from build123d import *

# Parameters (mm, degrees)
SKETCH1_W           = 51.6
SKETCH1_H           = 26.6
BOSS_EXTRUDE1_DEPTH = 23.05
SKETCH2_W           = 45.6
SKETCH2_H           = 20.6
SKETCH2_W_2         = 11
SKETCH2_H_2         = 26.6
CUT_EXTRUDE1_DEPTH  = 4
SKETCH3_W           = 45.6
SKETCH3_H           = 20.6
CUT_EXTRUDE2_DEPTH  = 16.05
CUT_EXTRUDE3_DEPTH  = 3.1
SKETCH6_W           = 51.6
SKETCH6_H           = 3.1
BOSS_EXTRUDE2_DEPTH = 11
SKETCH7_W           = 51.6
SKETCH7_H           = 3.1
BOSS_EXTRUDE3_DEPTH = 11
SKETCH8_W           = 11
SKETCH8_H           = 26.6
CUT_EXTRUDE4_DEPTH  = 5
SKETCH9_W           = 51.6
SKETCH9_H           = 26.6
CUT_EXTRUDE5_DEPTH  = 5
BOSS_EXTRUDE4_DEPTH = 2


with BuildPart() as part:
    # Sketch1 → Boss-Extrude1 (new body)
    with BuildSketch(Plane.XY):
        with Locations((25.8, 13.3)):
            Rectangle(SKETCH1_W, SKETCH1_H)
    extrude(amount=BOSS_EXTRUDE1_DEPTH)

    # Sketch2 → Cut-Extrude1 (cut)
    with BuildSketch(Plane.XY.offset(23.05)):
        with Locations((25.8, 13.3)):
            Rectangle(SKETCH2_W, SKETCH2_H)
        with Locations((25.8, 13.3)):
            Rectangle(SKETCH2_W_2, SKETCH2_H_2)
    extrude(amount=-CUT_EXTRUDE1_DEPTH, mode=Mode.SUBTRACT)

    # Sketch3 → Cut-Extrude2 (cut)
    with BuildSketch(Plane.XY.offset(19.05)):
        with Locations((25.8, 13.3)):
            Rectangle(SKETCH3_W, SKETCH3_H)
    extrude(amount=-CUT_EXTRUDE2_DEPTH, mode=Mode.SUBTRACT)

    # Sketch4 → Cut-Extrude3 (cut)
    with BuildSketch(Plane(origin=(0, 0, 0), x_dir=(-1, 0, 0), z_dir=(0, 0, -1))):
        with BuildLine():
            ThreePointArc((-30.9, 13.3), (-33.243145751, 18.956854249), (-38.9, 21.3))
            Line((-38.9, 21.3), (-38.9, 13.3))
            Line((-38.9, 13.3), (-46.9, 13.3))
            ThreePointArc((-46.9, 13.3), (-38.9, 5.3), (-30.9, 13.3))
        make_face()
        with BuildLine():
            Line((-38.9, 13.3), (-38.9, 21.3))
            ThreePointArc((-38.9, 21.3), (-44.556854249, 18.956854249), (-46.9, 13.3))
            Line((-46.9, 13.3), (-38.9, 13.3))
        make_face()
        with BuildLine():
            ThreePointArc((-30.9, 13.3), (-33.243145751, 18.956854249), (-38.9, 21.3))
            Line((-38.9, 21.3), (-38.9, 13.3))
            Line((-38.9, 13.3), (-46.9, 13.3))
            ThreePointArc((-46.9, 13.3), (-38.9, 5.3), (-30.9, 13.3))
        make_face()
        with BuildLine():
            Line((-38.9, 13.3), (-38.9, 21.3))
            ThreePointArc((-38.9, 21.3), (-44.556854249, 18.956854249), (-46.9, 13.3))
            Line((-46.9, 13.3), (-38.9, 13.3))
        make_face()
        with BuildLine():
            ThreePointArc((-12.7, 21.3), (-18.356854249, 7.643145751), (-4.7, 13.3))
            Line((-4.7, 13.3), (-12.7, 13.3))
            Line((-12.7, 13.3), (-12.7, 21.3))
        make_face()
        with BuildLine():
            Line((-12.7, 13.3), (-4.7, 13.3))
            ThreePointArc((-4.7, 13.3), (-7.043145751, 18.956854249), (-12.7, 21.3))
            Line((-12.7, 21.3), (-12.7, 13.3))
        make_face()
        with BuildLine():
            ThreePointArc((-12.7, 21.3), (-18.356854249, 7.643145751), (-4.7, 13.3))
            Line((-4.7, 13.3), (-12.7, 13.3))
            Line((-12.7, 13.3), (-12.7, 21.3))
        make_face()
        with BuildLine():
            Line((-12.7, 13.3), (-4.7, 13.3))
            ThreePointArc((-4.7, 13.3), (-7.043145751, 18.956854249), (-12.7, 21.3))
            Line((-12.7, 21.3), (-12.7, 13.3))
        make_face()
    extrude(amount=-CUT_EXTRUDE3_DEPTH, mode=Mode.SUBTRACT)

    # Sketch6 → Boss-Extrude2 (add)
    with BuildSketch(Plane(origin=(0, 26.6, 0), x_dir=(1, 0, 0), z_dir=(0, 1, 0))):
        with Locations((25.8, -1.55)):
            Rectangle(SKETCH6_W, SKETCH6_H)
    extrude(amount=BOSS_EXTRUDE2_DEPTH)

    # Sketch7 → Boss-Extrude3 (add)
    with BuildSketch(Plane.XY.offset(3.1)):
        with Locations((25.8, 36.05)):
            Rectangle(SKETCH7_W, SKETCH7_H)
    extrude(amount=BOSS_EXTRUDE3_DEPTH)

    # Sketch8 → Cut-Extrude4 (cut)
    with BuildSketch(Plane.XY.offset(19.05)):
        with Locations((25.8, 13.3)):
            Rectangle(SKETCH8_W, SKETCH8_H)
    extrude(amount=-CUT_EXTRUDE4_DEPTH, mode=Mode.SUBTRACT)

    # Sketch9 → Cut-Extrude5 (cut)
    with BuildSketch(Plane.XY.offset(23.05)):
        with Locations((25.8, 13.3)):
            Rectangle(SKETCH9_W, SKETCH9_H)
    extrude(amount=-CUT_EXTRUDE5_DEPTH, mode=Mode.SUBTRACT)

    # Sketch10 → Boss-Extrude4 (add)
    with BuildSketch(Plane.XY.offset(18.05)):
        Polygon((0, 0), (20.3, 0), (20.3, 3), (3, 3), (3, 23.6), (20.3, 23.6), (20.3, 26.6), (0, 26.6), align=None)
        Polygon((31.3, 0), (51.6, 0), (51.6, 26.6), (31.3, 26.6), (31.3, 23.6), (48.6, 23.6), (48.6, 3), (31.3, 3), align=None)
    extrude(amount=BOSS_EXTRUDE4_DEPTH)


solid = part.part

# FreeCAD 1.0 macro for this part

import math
import FreeCAD as App
import Part
import Sketcher


def add_polygon(sketch, points):
    """Adds a closed chain of lines whose ends are joined by coincident constraints."""
    first, n = sketch.GeometryCount, len(points)
    for a, b in zip(points, points[1:] + points[:1]):
        sketch.addGeometry(Part.LineSegment(App.Vector(*a, 0), App.Vector(*b, 0)), False)
    for i in range(n):
        sketch.addConstraint(Sketcher.Constraint("Coincident", first + i, 2, first + (i + 1) % n, 1))

doc = App.newDocument("Part")
params = doc.addObject("Spreadsheet::Sheet", "Params")
for row, (alias, value) in enumerate([
    ("sketch1_width", "51.6 mm"),
    ("sketch1_height", "26.6 mm"),
    ("pad1_length", "23.05 mm"),
    ("sketch2_width", "11 mm"),
    ("sketch2_height", "3 mm"),
    ("sketch2_width2", "17.3 mm"),
    ("sketch2_height2", "20.6 mm"),
    ("pocket1_length", "4 mm"),
    ("sketch3_width", "45.6 mm"),
    ("sketch3_height", "20.6 mm"),
    ("pocket2_length", "16.05 mm"),
    ("sketch4_radius", "8 mm"),
    ("pocket3_length", "3.1 mm"),
    ("sketch5_width", "51.6 mm"),
    ("sketch5_height", "3.1 mm"),
    ("pad2_length", "11 mm"),
    ("sketch6_width", "51.6 mm"),
    ("sketch6_height", "3.1 mm"),
    ("pad3_length", "11 mm"),
    ("sketch7_width", "11 mm"),
    ("sketch7_height", "26.6 mm"),
    ("pocket4_length", "5 mm"),
    ("sketch8_width", "51.6 mm"),
    ("sketch8_height", "26.6 mm"),
    ("pocket5_length", "5 mm"),
    ("sketch9_height", "3 mm"),
    ("sketch9_width", "20.3 mm"),
    ("sketch9_width2", "17.3 mm"),
    ("sketch9_height2", "20.6 mm"),
    ("pad4_length", "2 mm"),
], start=1):
    params.set(f"A{row}", alias)
    params.set(f"B{row}", "=" + value)
    params.setAlias(f"B{row}", alias)

body = doc.addObject("PartDesign::Body", "Body")

# Sketch on XY plane
sketch1 = body.newObject("Sketcher::SketchObject", "Sketch")
sketch1.AttachmentSupport = (doc.getObject("XY_Plane"), [""])
sketch1.MapMode = "FlatFace"
add_polygon(sketch1, [(0, 27), (0, 0), (52, 0), (52, 27)])  # lines 0-3
sketch1.addConstraint([
    Sketcher.Constraint("Vertical", 0),
    Sketcher.Constraint("Horizontal", 1),
    Sketcher.Constraint("Vertical", 2),
    Sketcher.Constraint("Horizontal", 3),
    Sketcher.Constraint("Coincident", 0, 2, -1, 1),
    Sketcher.Constraint("DistanceX", 1, 1, 1, 2, 51.6),
    Sketcher.Constraint("DistanceY", 0, 2, 0, 1, 26.6),
])
sketch1.setExpression("Constraints[9]", "Params.sketch1_width")
sketch1.setExpression("Constraints[10]", "Params.sketch1_height")
pad1 = body.newObject("PartDesign::Pad", "Pad")
pad1.Profile = sketch1
pad1.setExpression("Length", "Params.pad1_length")

# Sketch on XY plane
sketch2 = body.newObject("Sketcher::SketchObject", "Sketch001")
sketch2.AttachmentSupport = (doc.getObject("XY_Plane"), [""])
sketch2.MapMode = "FlatFace"
sketch2.AttachmentOffset = App.Placement(App.Vector(0, 0, 23.05), App.Rotation())
add_polygon(sketch2, [(3, 23.6), (3, 3), (20.3, 3), (20.3, 0), (31.3, 0), (31.3, 3), (48.6, 3), (48.6, 23.6), (31.3, 23.6), (31.3, 26.6), (20.3, 26.6), (20.3, 23.6)])  # lines 0-11
sketch2.addConstraint([
    Sketcher.Constraint("Vertical", 0),
    Sketcher.Constraint("Horizontal", 1),
    Sketcher.Constraint("Vertical", 2),
    Sketcher.Constraint("Horizontal", 3),
    Sketcher.Constraint("Vertical", 4),
    Sketcher.Constraint("Horizontal", 5),
    Sketcher.Constraint("Vertical", 6),
    Sketcher.Constraint("Horizontal", 7),
    Sketcher.Constraint("Vertical", 8),
    Sketcher.Constraint("Horizontal", 9),
    Sketcher.Constraint("Vertical", 10),
    Sketcher.Constraint("Horizontal", 11),
    Sketcher.Constraint("PointOnObject", 2, 2, -1),
    Sketcher.Constraint("Horizontal", 1, 2, 4, 2),
    Sketcher.Constraint("Horizontal", 7, 2, 10, 2),
    Sketcher.Constraint("Vertical", 4, 2, 7, 2),
    Sketcher.Constraint("Vertical", 2, 2, 9, 2),
    Sketcher.Constraint("Equal", 1, 5),
    Sketcher.Constraint("Equal", 4, 8),
    Sketcher.Constraint("DistanceX", 3, 1, 3, 2, 11.0),
    Sketcher.Constraint("DistanceY", 2, 2, 2, 1, 3.0),
    Sketcher.Constraint("DistanceX", 1, 1, 1, 2, 17.3),
    Sketcher.Constraint("DistanceY", 0, 2, 0, 1, 20.6),
    Sketcher.Constraint("DistanceX", -1, 1, 0, 2, 3.0),
])
sketch2.setExpression("Constraints[31]", "Params.sketch2_width")
sketch2.setExpression("Constraints[32]", "Params.sketch2_height")
sketch2.setExpression("Constraints[33]", "Params.sketch2_width2")
sketch2.setExpression("Constraints[34]", "Params.sketch2_height2")
pocket1 = body.newObject("PartDesign::Pocket", "Pocket")
pocket1.Profile = sketch2
pocket1.setExpression("Length", "Params.pocket1_length")

# Sketch on XY plane
sketch3 = body.newObject("Sketcher::SketchObject", "Sketch002")
sketch3.AttachmentSupport = (doc.getObject("XY_Plane"), [""])
sketch3.MapMode = "FlatFace"
sketch3.AttachmentOffset = App.Placement(App.Vector(0, 0, 19.05), App.Rotation())
add_polygon(sketch3, [(3, 24), (3, 3), (49, 3), (49, 24)])  # lines 0-3
sketch3.addConstraint([
    Sketcher.Constraint("Vertical", 0),
    Sketcher.Constraint("Horizontal", 1),
    Sketcher.Constraint("Vertical", 2),
    Sketcher.Constraint("Horizontal", 3),
    Sketcher.Constraint("DistanceX", 1, 1, 1, 2, 45.6),
    Sketcher.Constraint("DistanceY", 0, 2, 0, 1, 20.6),
    Sketcher.Constraint("DistanceX", -1, 1, 0, 2, 3.0),
    Sketcher.Constraint("DistanceY", -1, 1, 0, 2, 3.0),
])
sketch3.setExpression("Constraints[8]", "Params.sketch3_width")
sketch3.setExpression("Constraints[9]", "Params.sketch3_height")
pocket2 = body.newObject("PartDesign::Pocket", "Pocket001")
pocket2.Profile = sketch3
pocket2.setExpression("Length", "Params.pocket2_length")

# Sketch on XY plane
sketch4 = body.newObject("Sketcher::SketchObject", "Sketch003")
sketch4.AttachmentSupport = (doc.getObject("XY_Plane"), [""])
sketch4.MapMode = "FlatFace"
sketch4.addGeometry([
    Part.ArcOfCircle(Part.Circle(App.Vector(39, 13, 0), App.Vector(0, 0, 1), 8), math.radians(90), math.radians(180)),  # 0
    Part.ArcOfCircle(Part.Circle(App.Vector(39, 13, 0), App.Vector(0, 0, 1), 8), math.radians(0), math.radians(90)),  # 1
    Part.ArcOfCircle(Part.Circle(App.Vector(39, 13, 0), App.Vector(0, 0, 1), 8), math.radians(180), math.radians(360)),  # 2
    Part.ArcOfCircle(Part.Circle(App.Vector(13, 13, 0), App.Vector(0, 0, 1), 8), math.radians(180), math.radians(450)),  # 3
    Part.ArcOfCircle(Part.Circle(App.Vector(13, 13, 0), App.Vector(0, 0, 1), 8), math.radians(90), math.radians(180)),  # 4
], False)
sketch4.addConstraint([
    Sketcher.Constraint("Tangent", 0, 1, 1, 2),
    Sketcher.Constraint("Tangent", 1, 1, 2, 2),
    Sketcher.Constraint("Tangent", 2, 1, 0, 2),
    Sketcher.Constraint("Tangent", 3, 1, 4, 2),
    Sketcher.Constraint("Coincident", 4, 1, 3, 2),
    Sketcher.Constraint("Equal", 2, 3),
    Sketcher.Constraint("Horizontal", 2, 3, 3, 3),
    Sketcher.Constraint("Horizontal", 4, 3, 1, 1),
    Sketcher.Constraint("Horizontal", 1, 1, 2, 1),
    Sketcher.Constraint("Horizontal", 2, 1, 3, 1),
    Sketcher.Constraint("Vertical", 2, 3, 0, 1),
    Sketcher.Constraint("Vertical", 3, 3, 4, 1),
    Sketcher.Constraint("Radius", 0, 8.0),
    Sketcher.Constraint("DistanceX", -1, 1, 0, 3, 38.9),
    Sketcher.Constraint("DistanceY", -1, 1, 0, 3, 13.3),
    Sketcher.Constraint("DistanceX", -1, 1, 3, 3, 12.7),
])
sketch4.setExpression("Constraints[12]", "Params.sketch4_radius")
pocket3 = body.newObject("PartDesign::Pocket", "Pocket002")
pocket3.Profile = sketch4
pocket3.setExpression("Length", "Params.pocket3_length")
pocket3.Reversed = True

# Sketch on XZ plane
sketch5 = body.newObject("Sketcher::SketchObject", "Sketch004")
sketch5.AttachmentSupport = (doc.getObject("XZ_Plane"), [""])
sketch5.MapMode = "FlatFace"
sketch5.AttachmentOffset = App.Placement(App.Vector(0, 0, -26.6), App.Rotation())
add_polygon(sketch5, [(0, 0), (0, 3.1), (51.6, 3.1), (51.6, 0)])  # lines 0-3
sketch5.addConstraint([
    Sketcher.Constraint("Vertical", 0),
    Sketcher.Constraint("Horizontal", 1),
    Sketcher.Constraint("Vertical", 2),
    Sketcher.Constraint("Horizontal", 3),
    Sketcher.Constraint("Coincident", 3, 2, -1, 1),
    Sketcher.Constraint("DistanceX", 1, 1, 1, 2, 51.6),
    Sketcher.Constraint("DistanceY", 0, 1, 0, 2, 3.1),
])
sketch5.setExpression("Constraints[9]", "Params.sketch5_width")
sketch5.setExpression("Constraints[10]", "Params.sketch5_height")
pad2 = body.newObject("PartDesign::Pad", "Pad001")
pad2.Profile = sketch5
pad2.setExpression("Length", "Params.pad2_length")
pad2.Reversed = True

# Sketch on XY plane
sketch6 = body.newObject("Sketcher::SketchObject", "Sketch005")
sketch6.AttachmentSupport = (doc.getObject("XY_Plane"), [""])
sketch6.MapMode = "FlatFace"
sketch6.AttachmentOffset = App.Placement(App.Vector(0, 0, 3.1), App.Rotation())
add_polygon(sketch6, [(0, 37.6), (0, 34.5), (51.6, 34.5), (51.6, 37.6)])  # lines 0-3
sketch6.addConstraint([
    Sketcher.Constraint("Vertical", 0),
    Sketcher.Constraint("Horizontal", 1),
    Sketcher.Constraint("Vertical", 2),
    Sketcher.Constraint("Horizontal", 3),
    Sketcher.Constraint("PointOnObject", 0, 2, -2),
    Sketcher.Constraint("DistanceX", 1, 1, 1, 2, 51.6),
    Sketcher.Constraint("DistanceY", 0, 2, 0, 1, 3.1),
    Sketcher.Constraint("DistanceY", -1, 1, 0, 2, 34.5),
])
sketch6.setExpression("Constraints[9]", "Params.sketch6_width")
sketch6.setExpression("Constraints[10]", "Params.sketch6_height")
pad3 = body.newObject("PartDesign::Pad", "Pad002")
pad3.Profile = sketch6
pad3.setExpression("Length", "Params.pad3_length")

# Sketch on XY plane
sketch7 = body.newObject("Sketcher::SketchObject", "Sketch006")
sketch7.AttachmentSupport = (doc.getObject("XY_Plane"), [""])
sketch7.MapMode = "FlatFace"
sketch7.AttachmentOffset = App.Placement(App.Vector(0, 0, 19.05), App.Rotation())
add_polygon(sketch7, [(20, 27), (20, 0), (31, 0), (31, 27)])  # lines 0-3
sketch7.addConstraint([
    Sketcher.Constraint("Vertical", 0),
    Sketcher.Constraint("Horizontal", 1),
    Sketcher.Constraint("Vertical", 2),
    Sketcher.Constraint("Horizontal", 3),
    Sketcher.Constraint("PointOnObject", 0, 2, -1),
    Sketcher.Constraint("DistanceX", 1, 1, 1, 2, 11.0),
    Sketcher.Constraint("DistanceY", 0, 2, 0, 1, 26.6),
    Sketcher.Constraint("DistanceX", -1, 1, 0, 2, 20.3),
])
sketch7.setExpression("Constraints[9]", "Params.sketch7_width")
sketch7.setExpression("Constraints[10]", "Params.sketch7_height")
pocket4 = body.newObject("PartDesign::Pocket", "Pocket003")
pocket4.Profile = sketch7
pocket4.setExpression("Length", "Params.pocket4_length")

# Sketch on XY plane
sketch8 = body.newObject("Sketcher::SketchObject", "Sketch007")
sketch8.AttachmentSupport = (doc.getObject("XY_Plane"), [""])
sketch8.MapMode = "FlatFace"
sketch8.AttachmentOffset = App.Placement(App.Vector(0, 0, 23.05), App.Rotation())
add_polygon(sketch8, [(0, 27), (0, 0), (52, 0), (52, 27)])  # lines 0-3
sketch8.addConstraint([
    Sketcher.Constraint("Vertical", 0),
    Sketcher.Constraint("Horizontal", 1),
    Sketcher.Constraint("Vertical", 2),
    Sketcher.Constraint("Horizontal", 3),
    Sketcher.Constraint("Coincident", 0, 2, -1, 1),
    Sketcher.Constraint("DistanceX", 1, 1, 1, 2, 51.6),
    Sketcher.Constraint("DistanceY", 0, 2, 0, 1, 26.6),
])
sketch8.setExpression("Constraints[9]", "Params.sketch8_width")
sketch8.setExpression("Constraints[10]", "Params.sketch8_height")
pocket5 = body.newObject("PartDesign::Pocket", "Pocket004")
pocket5.Profile = sketch8
pocket5.setExpression("Length", "Params.pocket5_length")

# Sketch on XY plane
sketch9 = body.newObject("Sketcher::SketchObject", "Sketch008")
sketch9.AttachmentSupport = (doc.getObject("XY_Plane"), [""])
sketch9.MapMode = "FlatFace"
sketch9.AttachmentOffset = App.Placement(App.Vector(0, 0, 18.05), App.Rotation())
add_polygon(sketch9, [(0, 0), (20.3, 0), (20.3, 3), (3, 3), (3, 23.6), (20.3, 23.6), (20.3, 26.6), (0, 26.6)])  # lines 0-7
add_polygon(sketch9, [(31.3, 0), (51.6, 0), (51.6, 26.6), (31.3, 26.6), (31.3, 23.6), (48.6, 23.6), (48.6, 3), (31.3, 3)])  # lines 8-15
sketch9.addConstraint([
    Sketcher.Constraint("Horizontal", 0),
    Sketcher.Constraint("Vertical", 1),
    Sketcher.Constraint("Horizontal", 2),
    Sketcher.Constraint("Vertical", 3),
    Sketcher.Constraint("Horizontal", 4),
    Sketcher.Constraint("Vertical", 5),
    Sketcher.Constraint("Horizontal", 6),
    Sketcher.Constraint("Vertical", 7),
    Sketcher.Constraint("Horizontal", 8),
    Sketcher.Constraint("Vertical", 9),
    Sketcher.Constraint("Horizontal", 10),
    Sketcher.Constraint("Vertical", 11),
    Sketcher.Constraint("Horizontal", 12),
    Sketcher.Constraint("Vertical", 13),
    Sketcher.Constraint("Horizontal", 14),
    Sketcher.Constraint("Vertical", 15),
    Sketcher.Constraint("Coincident", 7, 2, -1, 1),
    Sketcher.Constraint("PointOnObject", 8, 2, -1),
    Sketcher.Constraint("Horizontal", 6, 2, 9, 2),
    Sketcher.Constraint("Horizontal", 4, 2, 11, 2),
    Sketcher.Constraint("Horizontal", 2, 2, 13, 2),
    Sketcher.Constraint("Vertical", 1, 2, 4, 2),
    Sketcher.Constraint("Vertical", 11, 2, 14, 2),
    Sketcher.Constraint("Equal", 6, 8),
    Sketcher.Constraint("Equal", 4, 12),
    Sketcher.Constraint("Equal", 1, 5),
    Sketcher.Constraint("DistanceY", 1, 1, 1, 2, 3.0),
    Sketcher.Constraint("DistanceX", 0, 1, 0, 2, 20.3),
    Sketcher.Constraint("DistanceX", 2, 2, 2, 1, 17.3),
    Sketcher.Constraint("DistanceY", 3, 1, 3, 2, 20.6),
    Sketcher.Constraint("DistanceX", 5, 2, 10, 2, 11.0),
])
sketch9.setExpression("Constraints[42]", "Params.sketch9_height")
sketch9.setExpression("Constraints[43]", "Params.sketch9_width")
sketch9.setExpression("Constraints[44]", "Params.sketch9_width2")
sketch9.setExpression("Constraints[45]", "Params.sketch9_height2")
pad4 = body.newObject("PartDesign::Pad", "Pad003")
pad4.Profile = sketch9
pad4.setExpression("Length", "Params.pad4_length")

doc.recompute()
